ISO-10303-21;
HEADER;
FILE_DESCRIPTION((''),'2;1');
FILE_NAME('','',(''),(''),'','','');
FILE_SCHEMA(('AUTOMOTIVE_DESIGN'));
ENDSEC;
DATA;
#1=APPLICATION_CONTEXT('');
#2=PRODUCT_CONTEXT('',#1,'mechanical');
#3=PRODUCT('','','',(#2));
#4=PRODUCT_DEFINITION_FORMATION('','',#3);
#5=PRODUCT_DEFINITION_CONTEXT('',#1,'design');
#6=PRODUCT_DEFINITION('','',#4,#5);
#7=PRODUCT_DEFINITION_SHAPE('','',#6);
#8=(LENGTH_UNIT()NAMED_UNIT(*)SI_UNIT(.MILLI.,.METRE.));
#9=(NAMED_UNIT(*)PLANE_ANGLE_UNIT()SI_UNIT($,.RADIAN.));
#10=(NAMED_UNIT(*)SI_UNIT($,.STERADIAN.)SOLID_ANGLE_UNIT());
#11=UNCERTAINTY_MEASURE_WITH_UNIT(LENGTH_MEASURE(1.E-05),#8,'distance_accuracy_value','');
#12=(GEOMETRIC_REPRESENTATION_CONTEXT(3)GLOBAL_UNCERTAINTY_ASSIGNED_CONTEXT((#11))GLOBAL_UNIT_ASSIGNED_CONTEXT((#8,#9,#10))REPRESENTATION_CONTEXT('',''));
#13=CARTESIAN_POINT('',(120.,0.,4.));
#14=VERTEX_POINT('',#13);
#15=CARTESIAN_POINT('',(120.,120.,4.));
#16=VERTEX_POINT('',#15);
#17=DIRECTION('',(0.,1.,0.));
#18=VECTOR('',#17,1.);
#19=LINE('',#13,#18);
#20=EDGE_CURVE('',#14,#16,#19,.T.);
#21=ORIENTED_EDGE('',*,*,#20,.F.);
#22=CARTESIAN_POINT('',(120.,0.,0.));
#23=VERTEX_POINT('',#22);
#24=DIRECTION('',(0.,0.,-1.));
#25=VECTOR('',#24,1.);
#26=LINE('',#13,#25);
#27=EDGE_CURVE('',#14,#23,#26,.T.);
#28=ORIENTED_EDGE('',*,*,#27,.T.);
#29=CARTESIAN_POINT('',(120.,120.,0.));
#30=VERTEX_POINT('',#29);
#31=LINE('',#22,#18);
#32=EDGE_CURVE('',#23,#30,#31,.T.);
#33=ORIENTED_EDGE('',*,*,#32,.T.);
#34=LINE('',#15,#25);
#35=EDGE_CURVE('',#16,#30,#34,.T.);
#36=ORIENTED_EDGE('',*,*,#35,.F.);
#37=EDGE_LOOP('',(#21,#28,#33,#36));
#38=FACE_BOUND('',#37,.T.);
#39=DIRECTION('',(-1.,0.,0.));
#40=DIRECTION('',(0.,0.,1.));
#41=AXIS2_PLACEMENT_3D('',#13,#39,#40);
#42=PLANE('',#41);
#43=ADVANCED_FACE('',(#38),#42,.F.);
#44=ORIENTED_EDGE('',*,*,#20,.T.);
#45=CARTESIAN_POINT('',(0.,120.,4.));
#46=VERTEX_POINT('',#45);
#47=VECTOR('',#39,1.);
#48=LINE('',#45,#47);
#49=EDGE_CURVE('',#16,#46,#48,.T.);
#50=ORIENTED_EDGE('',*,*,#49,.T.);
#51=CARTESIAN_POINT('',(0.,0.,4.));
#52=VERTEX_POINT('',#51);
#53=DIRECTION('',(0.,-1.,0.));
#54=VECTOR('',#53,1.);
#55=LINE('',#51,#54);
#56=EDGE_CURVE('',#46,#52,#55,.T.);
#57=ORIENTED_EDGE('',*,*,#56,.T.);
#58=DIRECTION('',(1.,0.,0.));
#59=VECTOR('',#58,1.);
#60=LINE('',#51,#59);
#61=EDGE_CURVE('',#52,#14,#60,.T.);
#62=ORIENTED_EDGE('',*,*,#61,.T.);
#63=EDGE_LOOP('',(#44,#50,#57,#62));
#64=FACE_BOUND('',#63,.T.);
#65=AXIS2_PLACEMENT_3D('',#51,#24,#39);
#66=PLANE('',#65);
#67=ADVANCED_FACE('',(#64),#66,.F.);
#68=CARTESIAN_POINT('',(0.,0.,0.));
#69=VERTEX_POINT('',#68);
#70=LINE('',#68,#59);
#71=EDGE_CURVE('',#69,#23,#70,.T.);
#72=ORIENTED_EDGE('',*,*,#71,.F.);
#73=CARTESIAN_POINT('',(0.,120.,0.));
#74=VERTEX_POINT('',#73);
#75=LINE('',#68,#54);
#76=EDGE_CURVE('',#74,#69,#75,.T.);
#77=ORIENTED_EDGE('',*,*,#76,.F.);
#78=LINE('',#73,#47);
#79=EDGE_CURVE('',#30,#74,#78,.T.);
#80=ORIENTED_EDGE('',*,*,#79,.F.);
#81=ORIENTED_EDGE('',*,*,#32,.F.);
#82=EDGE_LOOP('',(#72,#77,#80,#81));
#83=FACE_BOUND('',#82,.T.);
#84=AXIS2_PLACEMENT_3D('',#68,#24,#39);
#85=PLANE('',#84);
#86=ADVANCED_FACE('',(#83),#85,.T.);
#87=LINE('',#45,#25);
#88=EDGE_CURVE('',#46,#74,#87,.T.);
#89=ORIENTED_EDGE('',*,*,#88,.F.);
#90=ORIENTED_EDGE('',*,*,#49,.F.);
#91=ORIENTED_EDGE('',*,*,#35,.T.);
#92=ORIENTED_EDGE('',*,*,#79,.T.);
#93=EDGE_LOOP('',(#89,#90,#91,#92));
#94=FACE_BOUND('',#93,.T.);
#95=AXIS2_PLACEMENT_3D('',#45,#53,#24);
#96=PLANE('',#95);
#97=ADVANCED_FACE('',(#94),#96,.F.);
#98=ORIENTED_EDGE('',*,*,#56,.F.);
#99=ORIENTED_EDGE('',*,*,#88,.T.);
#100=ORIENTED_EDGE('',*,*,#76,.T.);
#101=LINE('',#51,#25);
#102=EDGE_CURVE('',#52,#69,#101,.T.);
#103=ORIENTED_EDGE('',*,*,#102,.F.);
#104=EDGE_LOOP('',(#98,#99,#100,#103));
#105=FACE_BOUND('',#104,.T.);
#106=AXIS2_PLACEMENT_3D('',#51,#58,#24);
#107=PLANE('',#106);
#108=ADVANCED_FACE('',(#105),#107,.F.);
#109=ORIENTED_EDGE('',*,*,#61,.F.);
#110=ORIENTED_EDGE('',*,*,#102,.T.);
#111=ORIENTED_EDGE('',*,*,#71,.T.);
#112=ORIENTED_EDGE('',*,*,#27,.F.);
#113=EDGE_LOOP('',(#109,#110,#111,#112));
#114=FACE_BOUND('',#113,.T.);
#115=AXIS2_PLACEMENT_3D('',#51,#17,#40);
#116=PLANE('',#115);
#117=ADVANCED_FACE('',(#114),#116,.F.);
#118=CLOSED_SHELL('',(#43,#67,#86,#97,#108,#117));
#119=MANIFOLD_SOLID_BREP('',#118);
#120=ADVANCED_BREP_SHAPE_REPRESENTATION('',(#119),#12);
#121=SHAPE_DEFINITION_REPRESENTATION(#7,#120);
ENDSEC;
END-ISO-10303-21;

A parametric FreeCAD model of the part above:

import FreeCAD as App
import Part
import Sketcher

V = App.Vector
Q = App.Units.Quantity

doc = App.newDocument("Part")
body = doc.addObject("PartDesign::Body", "Body")

# Sketch on XY plane
sketch1 = doc.addObject("Sketcher::SketchObject", "Sketch")
body.addObject(sketch1)
sketch1.AttachmentSupport = (doc.XY_Plane, [""])
sketch1.MapMode = "FlatFace"
sketch1.addGeometry([
    Part.LineSegment(V(0, 120, 0), V(0, 0, 0)),
    Part.LineSegment(V(0, 0, 0), V(120, 0, 0)),
    Part.LineSegment(V(120, 0, 0), V(120, 120, 0)),
    Part.LineSegment(V(120, 120, 0), V(0, 120, 0)),
], False)
sketch1.addConstraint([
    Sketcher.Constraint("Coincident", 0, 2, 1, 1),
    Sketcher.Constraint("Coincident", 1, 2, 2, 1),
    Sketcher.Constraint("Coincident", 2, 2, 3, 1),
    Sketcher.Constraint("Coincident", 3, 2, 0, 1),
    Sketcher.Constraint("Vertical", 0),
    Sketcher.Constraint("Horizontal", 1),
    Sketcher.Constraint("Vertical", 2),
    Sketcher.Constraint("Horizontal", 3),
    Sketcher.Constraint("Coincident", 0, 2, -1, 1),
    Sketcher.Constraint("Equal", 3, 0),
    Sketcher.Constraint("DistanceX", 1, 1, 1, 2, Q("120 mm")),
])
pad1 = doc.addObject("PartDesign::Pad", "Pad")
body.addObject(pad1)
pad1.Profile = sketch1
pad1.Length = 4

doc.recompute()
